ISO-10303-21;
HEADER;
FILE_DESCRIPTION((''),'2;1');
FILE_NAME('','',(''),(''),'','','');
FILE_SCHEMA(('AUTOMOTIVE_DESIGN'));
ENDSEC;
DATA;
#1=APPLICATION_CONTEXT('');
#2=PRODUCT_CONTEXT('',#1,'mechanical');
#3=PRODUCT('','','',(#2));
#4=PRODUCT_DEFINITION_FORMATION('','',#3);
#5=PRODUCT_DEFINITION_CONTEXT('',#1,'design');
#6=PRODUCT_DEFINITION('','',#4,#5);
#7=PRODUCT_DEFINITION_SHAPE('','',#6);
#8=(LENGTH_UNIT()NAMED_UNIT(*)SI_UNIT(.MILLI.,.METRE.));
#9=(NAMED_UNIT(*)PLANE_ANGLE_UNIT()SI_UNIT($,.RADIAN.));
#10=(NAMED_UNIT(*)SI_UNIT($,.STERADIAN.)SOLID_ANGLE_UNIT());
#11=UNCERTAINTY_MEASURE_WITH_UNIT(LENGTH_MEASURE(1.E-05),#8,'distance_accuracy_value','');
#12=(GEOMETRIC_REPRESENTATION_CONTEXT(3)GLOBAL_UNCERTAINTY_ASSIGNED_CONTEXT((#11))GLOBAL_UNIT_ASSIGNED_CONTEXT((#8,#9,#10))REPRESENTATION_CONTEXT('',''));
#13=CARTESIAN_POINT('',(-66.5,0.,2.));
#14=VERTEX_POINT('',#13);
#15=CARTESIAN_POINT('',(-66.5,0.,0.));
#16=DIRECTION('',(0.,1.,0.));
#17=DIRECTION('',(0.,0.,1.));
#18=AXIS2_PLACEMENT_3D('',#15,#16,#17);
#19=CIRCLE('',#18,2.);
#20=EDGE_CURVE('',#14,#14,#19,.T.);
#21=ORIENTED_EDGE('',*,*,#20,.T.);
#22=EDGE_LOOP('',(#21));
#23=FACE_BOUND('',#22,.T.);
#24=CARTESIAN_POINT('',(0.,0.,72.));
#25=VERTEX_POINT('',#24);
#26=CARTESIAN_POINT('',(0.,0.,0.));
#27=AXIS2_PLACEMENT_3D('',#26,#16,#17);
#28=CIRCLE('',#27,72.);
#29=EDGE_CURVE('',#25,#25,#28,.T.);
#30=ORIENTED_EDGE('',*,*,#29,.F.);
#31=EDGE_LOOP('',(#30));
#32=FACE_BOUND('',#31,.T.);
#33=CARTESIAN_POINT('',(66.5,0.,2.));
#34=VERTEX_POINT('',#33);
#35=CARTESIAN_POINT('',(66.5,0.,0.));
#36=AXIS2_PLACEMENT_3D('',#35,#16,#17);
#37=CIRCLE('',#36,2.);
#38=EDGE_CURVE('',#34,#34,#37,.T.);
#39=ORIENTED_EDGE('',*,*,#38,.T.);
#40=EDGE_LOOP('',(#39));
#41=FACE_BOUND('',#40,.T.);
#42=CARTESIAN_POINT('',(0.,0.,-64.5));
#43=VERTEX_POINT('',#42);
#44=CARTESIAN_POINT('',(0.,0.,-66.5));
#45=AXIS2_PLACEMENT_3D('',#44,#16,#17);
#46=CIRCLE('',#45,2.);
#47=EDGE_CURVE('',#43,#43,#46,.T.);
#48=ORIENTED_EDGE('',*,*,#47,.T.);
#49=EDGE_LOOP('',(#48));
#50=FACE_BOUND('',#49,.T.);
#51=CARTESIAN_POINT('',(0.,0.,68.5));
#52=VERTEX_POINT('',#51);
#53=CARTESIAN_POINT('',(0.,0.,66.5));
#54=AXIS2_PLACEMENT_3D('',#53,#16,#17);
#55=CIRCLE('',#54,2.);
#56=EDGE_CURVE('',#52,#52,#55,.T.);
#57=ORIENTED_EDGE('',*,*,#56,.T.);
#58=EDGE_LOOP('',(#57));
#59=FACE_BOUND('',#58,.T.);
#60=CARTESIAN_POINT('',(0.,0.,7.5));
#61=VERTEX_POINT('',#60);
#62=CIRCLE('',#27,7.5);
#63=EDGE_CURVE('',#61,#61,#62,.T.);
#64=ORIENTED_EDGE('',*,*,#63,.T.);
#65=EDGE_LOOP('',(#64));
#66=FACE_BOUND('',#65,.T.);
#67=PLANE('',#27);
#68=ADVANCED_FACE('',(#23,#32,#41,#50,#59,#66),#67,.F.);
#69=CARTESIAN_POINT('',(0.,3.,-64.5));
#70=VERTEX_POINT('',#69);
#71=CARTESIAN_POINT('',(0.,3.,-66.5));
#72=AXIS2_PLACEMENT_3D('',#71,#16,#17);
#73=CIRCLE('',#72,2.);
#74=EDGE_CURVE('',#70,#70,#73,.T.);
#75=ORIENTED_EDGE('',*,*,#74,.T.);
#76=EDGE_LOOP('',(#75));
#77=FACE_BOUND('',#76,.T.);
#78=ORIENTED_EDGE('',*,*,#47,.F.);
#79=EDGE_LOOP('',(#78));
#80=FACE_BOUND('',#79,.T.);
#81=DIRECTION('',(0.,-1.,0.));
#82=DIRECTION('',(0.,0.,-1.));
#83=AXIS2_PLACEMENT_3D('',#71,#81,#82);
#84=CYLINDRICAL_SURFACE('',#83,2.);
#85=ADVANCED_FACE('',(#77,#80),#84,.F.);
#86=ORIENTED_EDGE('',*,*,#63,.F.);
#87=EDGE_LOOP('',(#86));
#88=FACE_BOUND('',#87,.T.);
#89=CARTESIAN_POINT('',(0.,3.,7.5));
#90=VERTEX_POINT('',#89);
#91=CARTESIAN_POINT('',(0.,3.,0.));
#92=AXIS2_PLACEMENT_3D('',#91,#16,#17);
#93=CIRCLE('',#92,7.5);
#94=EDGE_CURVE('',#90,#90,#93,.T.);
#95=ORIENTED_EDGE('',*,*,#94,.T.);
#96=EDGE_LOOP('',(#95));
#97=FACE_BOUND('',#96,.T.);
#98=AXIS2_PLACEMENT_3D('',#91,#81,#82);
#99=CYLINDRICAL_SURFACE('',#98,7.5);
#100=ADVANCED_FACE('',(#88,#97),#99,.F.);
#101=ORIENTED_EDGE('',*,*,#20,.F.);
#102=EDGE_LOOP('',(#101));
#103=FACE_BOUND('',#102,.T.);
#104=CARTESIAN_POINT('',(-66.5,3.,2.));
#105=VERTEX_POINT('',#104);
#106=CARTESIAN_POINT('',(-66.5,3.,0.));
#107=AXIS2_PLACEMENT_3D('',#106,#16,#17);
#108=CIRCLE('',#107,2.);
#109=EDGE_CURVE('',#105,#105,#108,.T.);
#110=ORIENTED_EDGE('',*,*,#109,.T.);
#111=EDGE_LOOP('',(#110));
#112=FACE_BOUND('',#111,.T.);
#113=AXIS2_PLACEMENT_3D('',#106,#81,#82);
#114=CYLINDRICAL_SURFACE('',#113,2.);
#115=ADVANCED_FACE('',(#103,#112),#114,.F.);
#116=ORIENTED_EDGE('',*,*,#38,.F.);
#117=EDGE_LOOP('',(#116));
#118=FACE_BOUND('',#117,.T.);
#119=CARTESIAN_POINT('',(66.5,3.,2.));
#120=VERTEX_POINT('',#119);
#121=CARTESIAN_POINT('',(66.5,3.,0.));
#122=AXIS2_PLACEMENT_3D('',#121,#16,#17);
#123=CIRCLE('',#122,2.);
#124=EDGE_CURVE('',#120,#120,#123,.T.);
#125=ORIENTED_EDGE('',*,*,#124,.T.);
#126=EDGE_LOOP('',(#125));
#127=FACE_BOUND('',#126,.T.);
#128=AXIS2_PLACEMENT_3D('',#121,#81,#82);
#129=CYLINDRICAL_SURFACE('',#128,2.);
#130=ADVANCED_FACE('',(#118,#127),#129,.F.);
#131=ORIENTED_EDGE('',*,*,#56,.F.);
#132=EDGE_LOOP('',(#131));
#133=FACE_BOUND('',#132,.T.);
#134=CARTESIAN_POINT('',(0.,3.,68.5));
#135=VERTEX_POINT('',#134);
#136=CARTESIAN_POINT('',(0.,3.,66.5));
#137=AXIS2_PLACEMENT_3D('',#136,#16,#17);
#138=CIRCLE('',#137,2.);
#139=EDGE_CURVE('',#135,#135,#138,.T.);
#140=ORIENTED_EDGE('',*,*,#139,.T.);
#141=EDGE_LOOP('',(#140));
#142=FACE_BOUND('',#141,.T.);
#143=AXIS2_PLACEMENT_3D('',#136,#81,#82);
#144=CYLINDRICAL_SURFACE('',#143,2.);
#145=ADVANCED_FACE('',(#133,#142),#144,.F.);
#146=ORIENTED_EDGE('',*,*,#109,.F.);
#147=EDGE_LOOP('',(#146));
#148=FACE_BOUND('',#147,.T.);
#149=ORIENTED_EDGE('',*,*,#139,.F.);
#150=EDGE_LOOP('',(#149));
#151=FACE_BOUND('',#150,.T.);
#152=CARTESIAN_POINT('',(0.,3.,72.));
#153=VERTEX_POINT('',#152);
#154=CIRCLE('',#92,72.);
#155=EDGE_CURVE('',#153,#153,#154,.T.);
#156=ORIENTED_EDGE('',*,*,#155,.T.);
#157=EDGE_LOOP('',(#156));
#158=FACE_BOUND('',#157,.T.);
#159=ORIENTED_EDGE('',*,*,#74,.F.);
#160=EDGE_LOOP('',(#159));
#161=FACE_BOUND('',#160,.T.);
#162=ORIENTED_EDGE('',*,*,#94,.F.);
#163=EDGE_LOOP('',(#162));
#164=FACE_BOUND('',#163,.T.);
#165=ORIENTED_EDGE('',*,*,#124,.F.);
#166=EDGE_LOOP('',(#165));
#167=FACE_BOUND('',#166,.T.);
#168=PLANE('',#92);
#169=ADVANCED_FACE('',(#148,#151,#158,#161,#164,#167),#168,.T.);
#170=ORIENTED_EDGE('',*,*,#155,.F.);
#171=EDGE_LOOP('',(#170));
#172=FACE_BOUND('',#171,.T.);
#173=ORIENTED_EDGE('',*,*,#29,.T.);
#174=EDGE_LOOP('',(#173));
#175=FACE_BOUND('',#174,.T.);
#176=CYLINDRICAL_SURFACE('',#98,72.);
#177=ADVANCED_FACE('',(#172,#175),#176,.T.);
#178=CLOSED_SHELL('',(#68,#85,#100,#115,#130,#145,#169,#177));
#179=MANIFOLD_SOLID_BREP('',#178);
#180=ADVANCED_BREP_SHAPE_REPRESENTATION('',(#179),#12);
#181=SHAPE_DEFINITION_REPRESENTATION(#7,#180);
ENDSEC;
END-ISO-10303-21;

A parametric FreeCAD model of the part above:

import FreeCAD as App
import Part
import Sketcher

V = App.Vector

doc = App.newDocument("Part")
body = doc.addObject("PartDesign::Body", "Body")

# Sketch on XZ plane
sketch1 = body.newObject("Sketcher::SketchObject", "Sketch")
sketch1.AttachmentSupport = (doc.getObject("XZ_Plane"), [""])
sketch1.MapMode = "FlatFace"
sketch1.addGeometry(Part.Circle(V(0, 0, 0), V(0, 0, 1), 72), False)
sketch1.addGeometry(Part.Circle(V(0, -66.5, 0), V(0, 0, 1), 2), False)
sketch1.addGeometry(Part.Circle(V(-66.5, 0, 0), V(0, 0, 1), 2), False)
sketch1.addGeometry(Part.Circle(V(66.5, 0, 0), V(0, 0, 1), 2), False)
sketch1.addGeometry(Part.Circle(V(0, 0, 0), V(0, 0, 1), 7.5), False)
sketch1.addGeometry(Part.Circle(V(0, 66.5, 0), V(0, 0, 1), 2), False)
sketch1.addConstraint(Sketcher.Constraint("Coincident", 0, 3, -1, 1))
sketch1.addConstraint(Sketcher.Constraint("Coincident", 4, 3, -1, 1))
sketch1.addConstraint(Sketcher.Constraint("Equal", 1, 2))
sketch1.addConstraint(Sketcher.Constraint("Equal", 2, 3))
sketch1.addConstraint(Sketcher.Constraint("Equal", 3, 5))
sketch1.addConstraint(Sketcher.Constraint("Symmetric", 2, 3, 3, 3, -1, 1))
sketch1.addConstraint(Sketcher.Constraint("Symmetric", 1, 3, 5, 3, -1, 1))
sketch1.addConstraint(Sketcher.Constraint("PointOnObject", 1, 3, -2))
sketch1.addConstraint(Sketcher.Constraint("PointOnObject", 2, 3, -1))
sketch1.addConstraint(Sketcher.Constraint("Diameter", 0, 144.0))
sketch1.addConstraint(Sketcher.Constraint("Diameter", 1, 4.0))
sketch1.addConstraint(Sketcher.Constraint("Diameter", 4, 15.0))
sketch1.addConstraint(Sketcher.Constraint("DistanceX", 2, 3, 3, 3, 133.0))
sketch1.addConstraint(Sketcher.Constraint("DistanceY", 1, 3, 5, 3, 133.0))
pad1 = body.newObject("PartDesign::Pad", "Pad")
pad1.Profile = sketch1
pad1.Length = 3
pad1.Reversed = True

doc.recompute()
